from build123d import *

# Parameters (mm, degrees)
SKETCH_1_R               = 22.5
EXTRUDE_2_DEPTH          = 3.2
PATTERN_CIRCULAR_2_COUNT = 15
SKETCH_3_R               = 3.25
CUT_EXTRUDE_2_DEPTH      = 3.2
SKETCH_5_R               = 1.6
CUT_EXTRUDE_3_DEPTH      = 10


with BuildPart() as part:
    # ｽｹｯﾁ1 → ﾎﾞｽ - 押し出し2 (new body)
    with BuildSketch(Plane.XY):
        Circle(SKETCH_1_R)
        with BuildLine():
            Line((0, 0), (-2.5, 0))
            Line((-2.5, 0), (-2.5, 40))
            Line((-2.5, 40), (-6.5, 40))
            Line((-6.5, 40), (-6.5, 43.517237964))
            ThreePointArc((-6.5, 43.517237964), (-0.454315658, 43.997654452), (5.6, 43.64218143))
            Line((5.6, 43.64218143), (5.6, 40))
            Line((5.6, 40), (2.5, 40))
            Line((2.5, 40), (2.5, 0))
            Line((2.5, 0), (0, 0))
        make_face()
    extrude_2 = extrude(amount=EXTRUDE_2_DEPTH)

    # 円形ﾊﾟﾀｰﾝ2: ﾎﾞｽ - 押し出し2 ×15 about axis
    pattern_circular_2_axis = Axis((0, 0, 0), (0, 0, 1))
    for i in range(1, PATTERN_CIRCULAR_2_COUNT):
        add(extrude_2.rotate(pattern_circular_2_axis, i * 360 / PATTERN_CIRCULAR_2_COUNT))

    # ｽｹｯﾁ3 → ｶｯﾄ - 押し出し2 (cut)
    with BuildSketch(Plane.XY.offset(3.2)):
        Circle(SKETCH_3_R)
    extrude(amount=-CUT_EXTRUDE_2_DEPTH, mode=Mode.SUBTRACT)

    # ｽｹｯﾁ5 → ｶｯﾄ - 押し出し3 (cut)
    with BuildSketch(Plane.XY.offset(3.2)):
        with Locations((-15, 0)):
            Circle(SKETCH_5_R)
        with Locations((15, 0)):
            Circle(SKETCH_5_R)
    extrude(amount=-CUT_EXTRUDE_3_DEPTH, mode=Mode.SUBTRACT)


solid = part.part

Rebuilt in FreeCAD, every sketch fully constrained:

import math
import FreeCAD as App
import Part
import Sketcher

V = App.Vector
Q = App.Units.Quantity

doc = App.newDocument("Part")
params = doc.addObject("Spreadsheet::Sheet", "Params")
for row, (alias, value) in enumerate([
    ("sketch1_radius", "44 mm"),
    ("sketch1_radius2", "22.5 mm"),
    ("sketch1_width", "4 mm"),
    ("sketch1_width2", "3.1 mm"),
    ("pad1_length", "3.2 mm"),
    ("sketch2_diameter", "6.5 mm"),
    ("pocket1_length", "3.2 mm"),
    ("sketch3_diameter", "3.2 mm"),
    ("pocket2_length", "10 mm"),
], start=1):
    params.set(f"A{row}", alias)
    params.set(f"B{row}", "=" + value)
    params.setAlias(f"B{row}", alias)

body = doc.addObject("PartDesign::Body", "Body")

# Sketch on XY plane
sketch1 = body.newObject("Sketcher::SketchObject", "Sketch")
sketch1.AttachmentSupport = (doc.getObject("XY_Plane"), [""])
sketch1.MapMode = "FlatFace"
sketch1.addGeometry([
    Part.ArcOfCircle(Part.Circle(V(0, 0, 0), V(0, 0, 1), 22.5), math.radians(96), math.radians(444)),  # 0
    Part.LineSegment(V(2.5, 22.4, 0), V(2.5, 40, 0)),  # 1
    Part.LineSegment(V(2.5, 40, 0), V(5.6, 40, 0)),  # 2
    Part.LineSegment(V(5.6, 40, 0), V(5.6, 43.6, 0)),  # 3
    Part.ArcOfCircle(Part.Circle(V(0, 0, 0), V(0, 0, 1), 44), math.radians(82.69), math.radians(98.5)),  # 4
    Part.LineSegment(V(-6.5, 43.5, 0), V(-6.5, 40, 0)),  # 5
    Part.LineSegment(V(-6.5, 40, 0), V(-2.5, 40, 0)),  # 6
    Part.LineSegment(V(-2.5, 40, 0), V(-2.5, 22.4, 0)),  # 7
], False)
sketch1.addConstraint([
    Sketcher.Constraint("Coincident", 0, 2, 1, 1),
    Sketcher.Constraint("Coincident", 1, 2, 2, 1),
    Sketcher.Constraint("Coincident", 2, 2, 3, 1),
    Sketcher.Constraint("Coincident", 3, 2, 4, 1),
    Sketcher.Constraint("Coincident", 4, 2, 5, 1),
    Sketcher.Constraint("Coincident", 5, 2, 6, 1),
    Sketcher.Constraint("Coincident", 6, 2, 7, 1),
    Sketcher.Constraint("Coincident", 7, 2, 0, 1),
    Sketcher.Constraint("Vertical", 1),
    Sketcher.Constraint("Horizontal", 2),
    Sketcher.Constraint("Vertical", 3),
    Sketcher.Constraint("Vertical", 5),
    Sketcher.Constraint("Horizontal", 6),
    Sketcher.Constraint("Vertical", 7),
    Sketcher.Constraint("Coincident", 0, 3, -1, 1),
    Sketcher.Constraint("Coincident", 4, 3, -1, 1),
    Sketcher.Constraint("Symmetric", 1, 2, 6, 2, -2),
    Sketcher.Constraint("Radius", 4, Q("44 mm")),
    Sketcher.Constraint("Radius", 0, Q("22.5 mm")),
    Sketcher.Constraint("DistanceX", 6, 1, 6, 2, Q("4 mm")),
    Sketcher.Constraint("DistanceX", 2, 1, 2, 2, Q("3.1 mm")),
    Sketcher.Constraint("DistanceY", -1, 1, 1, 2, Q("40 mm")),
    Sketcher.Constraint("DistanceX", 4, 2, 1, 2, Q("9 mm")),
])
sketch1.setExpression("Constraints[17]", "Params.sketch1_radius")
sketch1.setExpression("Constraints[18]", "Params.sketch1_radius2")
sketch1.setExpression("Constraints[19]", "Params.sketch1_width")
sketch1.setExpression("Constraints[20]", "Params.sketch1_width2")
pad1 = body.newObject("PartDesign::Pad", "Pad")
pad1.Profile = sketch1
pad1.setExpression("Length", "Params.pad1_length")
doc.recompute()

polarpattern = body.newObject("PartDesign::PolarPattern", "PolarPattern")
polarpattern.Originals = [pad1]
polarpattern.Axis = (doc.getObject("Z_Axis"), [""])
polarpattern.Angle = 360
polarpattern.Occurrences = 15
body.Tip = polarpattern

# Sketch on XY plane
sketch2 = body.newObject("Sketcher::SketchObject", "Sketch001")
sketch2.AttachmentSupport = (doc.getObject("XY_Plane"), [""])
sketch2.MapMode = "FlatFace"
sketch2.AttachmentOffset = App.Placement(V(0, 0, 3.2), App.Rotation())
sketch2.addGeometry(Part.Circle(V(0, 0, 0), V(0, 0, 1), 3.2), False)
sketch2.addConstraint([
    Sketcher.Constraint("Coincident", 0, 3, -1, 1),
    Sketcher.Constraint("Diameter", 0, Q("6.5 mm")),
])
sketch2.setExpression("Constraints[1]", "Params.sketch2_diameter")
pocket1 = body.newObject("PartDesign::Pocket", "Pocket")
pocket1.Profile = sketch2
pocket1.setExpression("Length", "Params.pocket1_length")

# Sketch on XY plane
sketch3 = body.newObject("Sketcher::SketchObject", "Sketch002")
sketch3.AttachmentSupport = (doc.getObject("XY_Plane"), [""])
sketch3.MapMode = "FlatFace"
sketch3.AttachmentOffset = App.Placement(V(0, 0, 3.2), App.Rotation())
sketch3.addGeometry([
    Part.Circle(V(-15, 0, 0), V(0, 0, 1), 1.6),
    Part.Circle(V(15, 0, 0), V(0, 0, 1), 1.6),
], False)
sketch3.addConstraint([
    Sketcher.Constraint("Equal", 0, 1),
    Sketcher.Constraint("Symmetric", 0, 3, 1, 3, -1, 1),
    Sketcher.Constraint("PointOnObject", 0, 3, -1),
    Sketcher.Constraint("Diameter", 0, Q("3.2 mm")),
    Sketcher.Constraint("DistanceX", 0, 3, -1, 1, Q("15 mm")),
])
sketch3.setExpression("Constraints[3]", "Params.sketch3_diameter")
pocket2 = body.newObject("PartDesign::Pocket", "Pocket001")
pocket2.Profile = sketch3
pocket2.setExpression("Length", "Params.pocket2_length")

doc.recompute()
